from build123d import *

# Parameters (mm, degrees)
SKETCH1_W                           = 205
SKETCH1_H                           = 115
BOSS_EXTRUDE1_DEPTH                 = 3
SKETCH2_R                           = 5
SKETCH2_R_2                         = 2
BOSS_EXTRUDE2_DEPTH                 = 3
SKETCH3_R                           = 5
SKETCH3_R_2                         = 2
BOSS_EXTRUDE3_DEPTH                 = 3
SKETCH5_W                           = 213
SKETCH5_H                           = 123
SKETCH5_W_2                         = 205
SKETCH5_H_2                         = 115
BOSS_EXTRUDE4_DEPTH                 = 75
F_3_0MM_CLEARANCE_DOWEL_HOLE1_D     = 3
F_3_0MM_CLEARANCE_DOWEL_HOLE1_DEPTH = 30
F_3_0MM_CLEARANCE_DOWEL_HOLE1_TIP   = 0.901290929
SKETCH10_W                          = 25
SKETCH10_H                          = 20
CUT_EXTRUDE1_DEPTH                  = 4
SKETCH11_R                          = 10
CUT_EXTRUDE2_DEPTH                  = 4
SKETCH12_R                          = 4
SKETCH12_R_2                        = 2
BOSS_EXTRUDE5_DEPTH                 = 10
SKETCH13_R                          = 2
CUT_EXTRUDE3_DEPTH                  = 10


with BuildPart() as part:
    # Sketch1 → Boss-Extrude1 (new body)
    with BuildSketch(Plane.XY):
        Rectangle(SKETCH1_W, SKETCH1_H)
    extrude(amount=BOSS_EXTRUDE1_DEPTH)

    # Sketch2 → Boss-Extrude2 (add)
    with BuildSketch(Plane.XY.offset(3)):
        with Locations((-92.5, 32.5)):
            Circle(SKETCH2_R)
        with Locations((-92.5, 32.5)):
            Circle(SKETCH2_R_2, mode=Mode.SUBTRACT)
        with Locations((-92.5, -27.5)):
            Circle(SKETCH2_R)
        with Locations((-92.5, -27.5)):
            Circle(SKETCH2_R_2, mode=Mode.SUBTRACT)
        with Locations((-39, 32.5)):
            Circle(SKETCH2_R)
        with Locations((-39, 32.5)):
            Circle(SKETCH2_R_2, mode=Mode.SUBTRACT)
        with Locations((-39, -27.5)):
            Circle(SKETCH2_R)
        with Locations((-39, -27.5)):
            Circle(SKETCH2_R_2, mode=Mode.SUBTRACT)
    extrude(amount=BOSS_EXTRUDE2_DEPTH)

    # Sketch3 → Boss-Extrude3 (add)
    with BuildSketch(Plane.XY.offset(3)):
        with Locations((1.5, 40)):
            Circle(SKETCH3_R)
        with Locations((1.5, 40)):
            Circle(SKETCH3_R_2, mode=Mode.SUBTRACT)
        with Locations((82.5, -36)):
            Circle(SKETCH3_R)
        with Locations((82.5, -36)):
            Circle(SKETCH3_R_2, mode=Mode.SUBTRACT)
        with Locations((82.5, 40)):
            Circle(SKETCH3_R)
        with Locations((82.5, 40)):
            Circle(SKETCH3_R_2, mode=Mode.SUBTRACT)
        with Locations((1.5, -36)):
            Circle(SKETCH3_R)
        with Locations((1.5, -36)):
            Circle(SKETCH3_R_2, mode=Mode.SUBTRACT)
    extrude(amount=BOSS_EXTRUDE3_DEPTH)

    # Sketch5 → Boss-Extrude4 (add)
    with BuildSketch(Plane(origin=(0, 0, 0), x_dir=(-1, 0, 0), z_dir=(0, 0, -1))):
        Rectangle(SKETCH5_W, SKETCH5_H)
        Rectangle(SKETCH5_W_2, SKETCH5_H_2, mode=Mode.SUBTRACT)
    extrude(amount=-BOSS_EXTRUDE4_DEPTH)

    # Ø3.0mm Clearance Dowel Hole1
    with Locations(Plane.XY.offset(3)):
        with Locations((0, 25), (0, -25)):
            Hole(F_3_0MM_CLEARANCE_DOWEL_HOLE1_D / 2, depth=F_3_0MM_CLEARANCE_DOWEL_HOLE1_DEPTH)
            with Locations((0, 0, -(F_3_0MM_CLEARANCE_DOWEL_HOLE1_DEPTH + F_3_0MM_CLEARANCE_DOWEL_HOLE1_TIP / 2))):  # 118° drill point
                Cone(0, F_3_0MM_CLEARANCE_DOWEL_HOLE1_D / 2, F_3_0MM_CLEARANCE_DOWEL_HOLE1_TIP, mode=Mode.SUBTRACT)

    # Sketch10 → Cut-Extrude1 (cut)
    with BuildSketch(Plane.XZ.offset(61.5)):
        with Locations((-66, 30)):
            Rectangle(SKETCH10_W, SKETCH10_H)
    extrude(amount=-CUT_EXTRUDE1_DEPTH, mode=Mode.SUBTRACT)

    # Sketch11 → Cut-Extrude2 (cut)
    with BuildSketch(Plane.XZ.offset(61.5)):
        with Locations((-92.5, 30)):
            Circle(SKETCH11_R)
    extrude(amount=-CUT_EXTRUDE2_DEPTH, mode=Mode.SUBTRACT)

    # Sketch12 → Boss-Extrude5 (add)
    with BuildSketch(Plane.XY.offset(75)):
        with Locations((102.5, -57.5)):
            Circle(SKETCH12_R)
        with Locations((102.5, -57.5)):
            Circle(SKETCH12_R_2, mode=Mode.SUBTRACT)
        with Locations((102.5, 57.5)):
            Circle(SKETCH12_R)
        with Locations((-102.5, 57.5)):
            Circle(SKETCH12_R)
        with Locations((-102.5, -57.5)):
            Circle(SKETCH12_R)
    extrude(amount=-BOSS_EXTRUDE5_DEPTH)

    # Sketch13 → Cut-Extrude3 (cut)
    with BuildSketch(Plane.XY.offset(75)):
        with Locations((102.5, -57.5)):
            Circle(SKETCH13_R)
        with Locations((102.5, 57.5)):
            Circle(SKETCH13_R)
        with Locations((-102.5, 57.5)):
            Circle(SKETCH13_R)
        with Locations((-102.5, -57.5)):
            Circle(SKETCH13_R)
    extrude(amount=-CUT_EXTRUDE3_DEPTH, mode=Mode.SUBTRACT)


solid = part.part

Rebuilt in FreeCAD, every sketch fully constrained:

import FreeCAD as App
import Part
import Sketcher

V = App.Vector

doc = App.newDocument("Part")
body = doc.addObject("PartDesign::Body", "Body")

# Sketch on XY plane
sketch1 = doc.addObject("Sketcher::SketchObject", "Sketch")
body.addObject(sketch1)
sketch1.AttachmentSupport = (doc.XY_Plane, [""])
sketch1.MapMode = "FlatFace"
sketch1.addGeometry([
    Part.LineSegment(V(-102, 58, 0), V(-102, -58, 0)),
    Part.LineSegment(V(-102, -58, 0), V(102, -58, 0)),
    Part.LineSegment(V(102, -58, 0), V(102, 58, 0)),
    Part.LineSegment(V(102, 58, 0), V(-102, 58, 0)),
], False)
sketch1.addConstraint([
    Sketcher.Constraint("Coincident", 0, 2, 1, 1),
    Sketcher.Constraint("Coincident", 1, 2, 2, 1),
    Sketcher.Constraint("Coincident", 2, 2, 3, 1),
    Sketcher.Constraint("Coincident", 3, 2, 0, 1),
    Sketcher.Constraint("Vertical", 0),
    Sketcher.Constraint("Horizontal", 1),
    Sketcher.Constraint("Vertical", 2),
    Sketcher.Constraint("Horizontal", 3),
    Sketcher.Constraint("Symmetric", 0, 2, 2, 2, -1, 1),
    Sketcher.Constraint("DistanceX", 1, 1, 1, 2, 205.0),
    Sketcher.Constraint("DistanceY", 0, 2, 0, 1, 115.0),
])
pad1 = doc.addObject("PartDesign::Pad", "Pad")
body.addObject(pad1)
pad1.Profile = sketch1
pad1.Length = 3

# Sketch on XY plane
sketch2 = doc.addObject("Sketcher::SketchObject", "Sketch001")
body.addObject(sketch2)
sketch2.AttachmentSupport = (doc.XY_Plane, [""])
sketch2.MapMode = "FlatFace"
sketch2.AttachmentOffset = App.Placement(V(0, 0, 3), App.Rotation())
sketch2.addGeometry([
    Part.Circle(V(-92.5, 32.5, 0), V(0, 0, 1), 5),  # 0
    Part.Circle(V(-92.5, 32.5, 0), V(0, 0, 1), 2),  # 1
    Part.Circle(V(-92.5, -27.5, 0), V(0, 0, 1), 5),  # 2
    Part.Circle(V(-92.5, -27.5, 0), V(0, 0, 1), 2),  # 3
    Part.Circle(V(-39, 32.5, 0), V(0, 0, 1), 5),  # 4
    Part.Circle(V(-39, 32.5, 0), V(0, 0, 1), 2),  # 5
    Part.Circle(V(-39, -27.5, 0), V(0, 0, 1), 5),  # 6
    Part.Circle(V(-39, -27.5, 0), V(0, 0, 1), 2),  # 7
], False)
sketch2.addConstraint([
    Sketcher.Constraint("Coincident", 1, 3, 0, 3),
    Sketcher.Constraint("Coincident", 3, 3, 2, 3),
    Sketcher.Constraint("Coincident", 5, 3, 4, 3),
    Sketcher.Constraint("Coincident", 7, 3, 6, 3),
    Sketcher.Constraint("Equal", 0, 2),
    Sketcher.Constraint("Equal", 1, 3),
    Sketcher.Constraint("Equal", 2, 4),
    Sketcher.Constraint("Equal", 3, 5),
    Sketcher.Constraint("Equal", 4, 6),
    Sketcher.Constraint("Equal", 5, 7),
    Sketcher.Constraint("Horizontal", 1, 3, 4, 3),
    Sketcher.Constraint("Horizontal", 3, 3, 6, 3),
    Sketcher.Constraint("Vertical", 1, 3, 2, 3),
    Sketcher.Constraint("Vertical", 5, 3, 6, 3),
    Sketcher.Constraint("Diameter", 0, 10.0),
    Sketcher.Constraint("Diameter", 1, 4.0),
    Sketcher.Constraint("DistanceX", 4, 3, -1, 1, 39.0),
    Sketcher.Constraint("DistanceY", 2, 3, 0, 3, 60.0),
    Sketcher.Constraint("DistanceX", 0, 3, -1, 1, 92.5),
    Sketcher.Constraint("DistanceY", -1, 1, 0, 3, 32.5),
])
pad2 = doc.addObject("PartDesign::Pad", "Pad001")
body.addObject(pad2)
pad2.Profile = sketch2
pad2.Length = 3

# Sketch on XY plane
sketch3 = doc.addObject("Sketcher::SketchObject", "Sketch002")
body.addObject(sketch3)
sketch3.AttachmentSupport = (doc.XY_Plane, [""])
sketch3.MapMode = "FlatFace"
sketch3.AttachmentOffset = App.Placement(V(0, 0, 3), App.Rotation())
sketch3.addGeometry([
    Part.Circle(V(1.5, 40, 0), V(0, 0, 1), 5),  # 0
    Part.Circle(V(1.5, 40, 0), V(0, 0, 1), 2),  # 1
    Part.Circle(V(82.5, -36, 0), V(0, 0, 1), 5),  # 2
    Part.Circle(V(82.5, -36, 0), V(0, 0, 1), 2),  # 3
    Part.Circle(V(82.5, 40, 0), V(0, 0, 1), 5),  # 4
    Part.Circle(V(82.5, 40, 0), V(0, 0, 1), 2),  # 5
    Part.Circle(V(1.5, -36, 0), V(0, 0, 1), 5),  # 6
    Part.Circle(V(1.5, -36, 0), V(0, 0, 1), 2),  # 7
], False)
sketch3.addConstraint([
    Sketcher.Constraint("Coincident", 1, 3, 0, 3),
    Sketcher.Constraint("Coincident", 3, 3, 2, 3),
    Sketcher.Constraint("Coincident", 5, 3, 4, 3),
    Sketcher.Constraint("Coincident", 7, 3, 6, 3),
    Sketcher.Constraint("Equal", 0, 2),
    Sketcher.Constraint("Equal", 1, 3),
    Sketcher.Constraint("Equal", 2, 4),
    Sketcher.Constraint("Equal", 3, 5),
    Sketcher.Constraint("Equal", 4, 6),
    Sketcher.Constraint("Equal", 5, 7),
    Sketcher.Constraint("Horizontal", 1, 3, 4, 3),
    Sketcher.Constraint("Horizontal", 3, 3, 6, 3),
    Sketcher.Constraint("Vertical", 3, 3, 4, 3),
    Sketcher.Constraint("Vertical", 1, 3, 6, 3),
    Sketcher.Constraint("Diameter", 0, 10.0),
    Sketcher.Constraint("Diameter", 1, 4.0),
    Sketcher.Constraint("DistanceY", -1, 1, 0, 3, 40.0),
    Sketcher.Constraint("DistanceY", 2, 3, -1, 1, 36.0),
    Sketcher.Constraint("DistanceX", 0, 3, 2, 3, 81.0),
    Sketcher.Constraint("DistanceX", -1, 1, 0, 3, 1.5),
])
pad3 = doc.addObject("PartDesign::Pad", "Pad002")
body.addObject(pad3)
pad3.Profile = sketch3
pad3.Length = 3

# Sketch on XY plane
sketch4 = doc.addObject("Sketcher::SketchObject", "Sketch003")
body.addObject(sketch4)
sketch4.AttachmentSupport = (doc.XY_Plane, [""])
sketch4.MapMode = "FlatFace"
sketch4.addGeometry([
    Part.LineSegment(V(106, 62, 0), V(106, -62, 0)),  # 0
    Part.LineSegment(V(106, -62, 0), V(-106, -62, 0)),  # 1
    Part.LineSegment(V(-106, -62, 0), V(-106, 62, 0)),  # 2
    Part.LineSegment(V(-106, 62, 0), V(106, 62, 0)),  # 3
    Part.LineSegment(V(-102, -58, 0), V(102, -58, 0)),  # 4
    Part.LineSegment(V(102, -58, 0), V(102, 58, 0)),  # 5
    Part.LineSegment(V(102, 58, 0), V(-102, 58, 0)),  # 6
    Part.LineSegment(V(-102, 58, 0), V(-102, -58, 0)),  # 7
], False)
sketch4.addConstraint([
    Sketcher.Constraint("Coincident", 0, 2, 1, 1),
    Sketcher.Constraint("Coincident", 1, 2, 2, 1),
    Sketcher.Constraint("Coincident", 2, 2, 3, 1),
    Sketcher.Constraint("Coincident", 3, 2, 0, 1),
    Sketcher.Constraint("Coincident", 4, 2, 5, 1),
    Sketcher.Constraint("Coincident", 5, 2, 6, 1),
    Sketcher.Constraint("Coincident", 6, 2, 7, 1),
    Sketcher.Constraint("Coincident", 7, 2, 4, 1),
    Sketcher.Constraint("Vertical", 0),
    Sketcher.Constraint("Horizontal", 1),
    Sketcher.Constraint("Vertical", 2),
    Sketcher.Constraint("Horizontal", 3),
    Sketcher.Constraint("Horizontal", 4),
    Sketcher.Constraint("Vertical", 5),
    Sketcher.Constraint("Horizontal", 6),
    Sketcher.Constraint("Vertical", 7),
    Sketcher.Constraint("Symmetric", 0, 2, 2, 2, -1, 1),
    Sketcher.Constraint("Symmetric", 4, 2, 6, 2, -1, 1),
    Sketcher.Constraint("DistanceX", 1, 2, 1, 1, 213.0),
    Sketcher.Constraint("DistanceX", 4, 1, 4, 2, 205.0),
    Sketcher.Constraint("DistanceY", 0, 2, 0, 1, 123.0),
    Sketcher.Constraint("DistanceY", 5, 1, 5, 2, 115.0),
])
pad4 = doc.addObject("PartDesign::Pad", "Pad003")
body.addObject(pad4)
pad4.Profile = sketch4
pad4.Length = 75

# Sketch on XY plane
sketch5 = doc.addObject("Sketcher::SketchObject", "Sketch004")
body.addObject(sketch5)
sketch5.AttachmentSupport = (doc.XY_Plane, [""])
sketch5.MapMode = "FlatFace"
sketch5.AttachmentOffset = App.Placement(V(0, 0, 3), App.Rotation())
sketch5.addGeometry([
    Part.Circle(V(0, 25, 0), V(0, 0, 1), 1.5),
    Part.Circle(V(0, -25, 0), V(0, 0, 1), 1.5),
], False)
sketch5.addConstraint([
    Sketcher.Constraint("Equal", 0, 1),
    Sketcher.Constraint("Symmetric", 0, 3, 1, 3, -1, 1),
    Sketcher.Constraint("PointOnObject", 0, 3, -2),
    Sketcher.Constraint("Diameter", 0, 3.0),
    Sketcher.Constraint("DistanceY", -1, 1, 0, 3, 25.0),
])
doc.recompute()
hole = doc.addObject("PartDesign::Hole", "Hole")
body.addObject(hole)
hole.Profile = sketch5
hole.ThreadType = "None"
hole.Diameter = 3
hole.DepthType = "Dimension"
hole.Depth = 30
hole.DrillPoint = "Angled"
hole.DrillPointAngle = 118

# Sketch on XZ plane
sketch6 = doc.addObject("Sketcher::SketchObject", "Sketch005")
body.addObject(sketch6)
sketch6.AttachmentSupport = (doc.XZ_Plane, [""])
sketch6.MapMode = "FlatFace"
sketch6.AttachmentOffset = App.Placement(V(0, 0, 61.5), App.Rotation())
sketch6.addGeometry([
    Part.LineSegment(V(-78, 40, 0), V(-78, 20, 0)),
    Part.LineSegment(V(-78, 20, 0), V(-54, 20, 0)),
    Part.LineSegment(V(-54, 20, 0), V(-54, 40, 0)),
    Part.LineSegment(V(-54, 40, 0), V(-78, 40, 0)),
], False)
sketch6.addConstraint([
    Sketcher.Constraint("Coincident", 0, 2, 1, 1),
    Sketcher.Constraint("Coincident", 1, 2, 2, 1),
    Sketcher.Constraint("Coincident", 2, 2, 3, 1),
    Sketcher.Constraint("Coincident", 3, 2, 0, 1),
    Sketcher.Constraint("Vertical", 0),
    Sketcher.Constraint("Horizontal", 1),
    Sketcher.Constraint("Vertical", 2),
    Sketcher.Constraint("Horizontal", 3),
    Sketcher.Constraint("DistanceX", 1, 1, 1, 2, 25.0),
    Sketcher.Constraint("DistanceY", 0, 2, 0, 1, 20.0),
    Sketcher.Constraint("DistanceY", -1, 1, 0, 2, 20.0),
    Sketcher.Constraint("DistanceX", 0, 2, -1, 1, 78.5),
])
pocket1 = doc.addObject("PartDesign::Pocket", "Pocket")
body.addObject(pocket1)
pocket1.Profile = sketch6
pocket1.Length = 4

# Sketch on XZ plane
sketch7 = doc.addObject("Sketcher::SketchObject", "Sketch006")
body.addObject(sketch7)
sketch7.AttachmentSupport = (doc.XZ_Plane, [""])
sketch7.MapMode = "FlatFace"
sketch7.AttachmentOffset = App.Placement(V(0, 0, 61.5), App.Rotation())
sketch7.addGeometry(Part.Circle(V(-92, 30, 0), V(0, 0, 1), 10), False)
sketch7.addConstraint([
    Sketcher.Constraint("Diameter", 0, 20.0),
    Sketcher.Constraint("DistanceY", -1, 1, 0, 3, 30.0),
    Sketcher.Constraint("DistanceX", 0, 3, -1, 1, 92.5),
])
pocket2 = doc.addObject("PartDesign::Pocket", "Pocket001")
body.addObject(pocket2)
pocket2.Profile = sketch7
pocket2.Length = 4

# Sketch on XY plane
sketch8 = doc.addObject("Sketcher::SketchObject", "Sketch007")
body.addObject(sketch8)
sketch8.AttachmentSupport = (doc.XY_Plane, [""])
sketch8.MapMode = "FlatFace"
sketch8.AttachmentOffset = App.Placement(V(0, 0, 75), App.Rotation())
sketch8.addGeometry([
    Part.Circle(V(102.5, -57.5, 0), V(0, 0, 1), 4),  # 0
    Part.Circle(V(102.5, -57.5, 0), V(0, 0, 1), 2),  # 1
    Part.Circle(V(102.5, 57.5, 0), V(0, 0, 1), 4),  # 2
    Part.Circle(V(-102.5, 57.5, 0), V(0, 0, 1), 4),  # 3
    Part.Circle(V(-102.5, -57.5, 0), V(0, 0, 1), 4),  # 4
], False)
sketch8.addConstraint([
    Sketcher.Constraint("Coincident", 1, 3, 0, 3),
    Sketcher.Constraint("Equal", 0, 2),
    Sketcher.Constraint("Equal", 2, 3),
    Sketcher.Constraint("Equal", 3, 4),
    Sketcher.Constraint("Symmetric", 0, 3, 3, 3, -1, 1),
    Sketcher.Constraint("Symmetric", 2, 3, 4, 3, -1, 1),
    Sketcher.Constraint("Symmetric", 2, 3, 3, 3, -2),
    Sketcher.Constraint("Diameter", 0, 8.0),
    Sketcher.Constraint("Diameter", 1, 4.0),
    Sketcher.Constraint("DistanceY", 0, 3, 2, 3, 115.0),
    Sketcher.Constraint("DistanceX", 3, 3, 2, 3, 205.0),
])
pad5 = doc.addObject("PartDesign::Pad", "Pad004")
body.addObject(pad5)
pad5.Profile = sketch8
pad5.Length = 10
pad5.Reversed = True

# Sketch on XY plane
sketch9 = doc.addObject("Sketcher::SketchObject", "Sketch008")
body.addObject(sketch9)
sketch9.AttachmentSupport = (doc.XY_Plane, [""])
sketch9.MapMode = "FlatFace"
sketch9.AttachmentOffset = App.Placement(V(0, 0, 75), App.Rotation())
sketch9.addGeometry([
    Part.Circle(V(102.5, -57.5, 0), V(0, 0, 1), 2),
    Part.Circle(V(102.5, 57.5, 0), V(0, 0, 1), 2),
    Part.Circle(V(-102.5, 57.5, 0), V(0, 0, 1), 2),
    Part.Circle(V(-102.5, -57.5, 0), V(0, 0, 1), 2),
], False)
sketch9.addConstraint([
    Sketcher.Constraint("Equal", 0, 1),
    Sketcher.Constraint("Equal", 1, 2),
    Sketcher.Constraint("Equal", 2, 3),
    Sketcher.Constraint("Symmetric", 0, 3, 2, 3, -1, 1),
    Sketcher.Constraint("Symmetric", 1, 3, 3, 3, -1, 1),
    Sketcher.Constraint("Symmetric", 1, 3, 2, 3, -2),
    Sketcher.Constraint("Diameter", 0, 4.0),
    Sketcher.Constraint("DistanceY", 0, 3, 1, 3, 115.0),
    Sketcher.Constraint("DistanceX", 2, 3, 1, 3, 205.0),
])
pocket3 = doc.addObject("PartDesign::Pocket", "Pocket002")
body.addObject(pocket3)
pocket3.Profile = sketch9
pocket3.Length = 10

doc.recompute()
